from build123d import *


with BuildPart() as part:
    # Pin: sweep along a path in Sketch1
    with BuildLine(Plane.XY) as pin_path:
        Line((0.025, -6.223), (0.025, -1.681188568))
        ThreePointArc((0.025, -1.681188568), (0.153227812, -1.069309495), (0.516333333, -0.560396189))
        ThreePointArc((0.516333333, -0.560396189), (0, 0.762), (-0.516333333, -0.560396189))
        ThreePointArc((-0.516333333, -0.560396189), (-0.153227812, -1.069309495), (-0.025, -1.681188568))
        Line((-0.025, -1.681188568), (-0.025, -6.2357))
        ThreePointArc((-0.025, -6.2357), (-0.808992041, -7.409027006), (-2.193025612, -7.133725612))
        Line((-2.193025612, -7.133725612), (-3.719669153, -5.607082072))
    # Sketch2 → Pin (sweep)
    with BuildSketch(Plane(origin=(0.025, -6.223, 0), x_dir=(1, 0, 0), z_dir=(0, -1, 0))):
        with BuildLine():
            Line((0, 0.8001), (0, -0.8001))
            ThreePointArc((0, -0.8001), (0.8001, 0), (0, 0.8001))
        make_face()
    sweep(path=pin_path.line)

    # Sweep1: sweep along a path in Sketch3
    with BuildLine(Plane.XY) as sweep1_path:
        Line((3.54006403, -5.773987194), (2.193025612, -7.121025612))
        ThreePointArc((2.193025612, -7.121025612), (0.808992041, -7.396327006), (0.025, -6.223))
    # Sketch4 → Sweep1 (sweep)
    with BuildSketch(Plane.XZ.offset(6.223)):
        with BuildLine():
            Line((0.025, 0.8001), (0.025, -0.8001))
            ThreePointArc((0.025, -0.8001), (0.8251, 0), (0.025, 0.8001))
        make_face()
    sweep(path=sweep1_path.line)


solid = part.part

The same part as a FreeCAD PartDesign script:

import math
import FreeCAD as App
import Part
import Sketcher
Q = App.Units.Quantity

doc = App.newDocument("Part")
body = doc.addObject("PartDesign::Body", "Body")

# Sketch on XZ plane
sketch1 = body.newObject("Sketcher::SketchObject", "Sketch")
sketch1.AttachmentSupport = (doc.getObject("XZ_Plane"), [""])
sketch1.MapMode = "FlatFace"
sketch1.AttachmentOffset = App.Placement(App.Vector(0, 0, 0.245 * 25.4), App.Rotation())
sketch1.addGeometry(Part.LineSegment(App.Vector(0.025, 0.8001, 0), App.Vector(0.025, -0.8001, 0)), False)
sketch1.addGeometry(Part.ArcOfCircle(Part.Circle(App.Vector(0.025, 0, 0), App.Vector(0, 0, 1), 0.8001), math.radians(-90), math.radians(90)), False)
sketch1.addConstraint(Sketcher.Constraint("Coincident", 0, 1, 1, 2))
sketch1.addConstraint(Sketcher.Constraint("Coincident", 1, 1, 0, 2))
sketch1.addConstraint(Sketcher.Constraint("Vertical", 0))
sketch1.addConstraint(Sketcher.Constraint("PointOnObject", 1, 3, -1))
sketch1.addConstraint(Sketcher.Constraint("Vertical", 1, 3, 0, 1))
sketch1.addConstraint(Sketcher.Constraint("Radius", 1, Q("0.0315 in")))
sketch1.addConstraint(Sketcher.Constraint("DistanceX", -1, 1, 1, 3, Q("0.025 mm")))

# Sketch on XY plane
sketch2 = body.newObject("Sketcher::SketchObject", "Sketch001")
sketch2.AttachmentSupport = (doc.getObject("XY_Plane"), [""])
sketch2.MapMode = "FlatFace"
sketch2.addGeometry(Part.LineSegment(App.Vector(0.025, -6.223, 0), App.Vector(0.025, -1.681189, 0)), False)
sketch2.addGeometry(Part.ArcOfCircle(Part.Circle(App.Vector(1.549, -1.681189, 0), App.Vector(0, 0, 1), 1.524), math.radians(132.6566), math.radians(180)), False)
sketch2.addGeometry(Part.ArcOfCircle(Part.Circle(App.Vector(0, 0, 0), App.Vector(0, 0, 1), 0.762), math.radians(-47.3434), math.radians(227.3434)), False)
sketch2.addGeometry(Part.ArcOfCircle(Part.Circle(App.Vector(-1.549, -1.681189, 0), App.Vector(0, 0, 1), 1.524), math.radians(0), math.radians(47.3434)), False)
sketch2.addGeometry(Part.LineSegment(App.Vector(-0.025, -1.681189, 0), App.Vector(-0.025, -6.2357, 0)), False)
sketch2.addGeometry(Part.ArcOfCircle(Part.Circle(App.Vector(-1.295, -6.2357, 0), App.Vector(0, 0, 1), 1.27), math.radians(-135), math.radians(0)), False)
sketch2.addGeometry(Part.LineSegment(App.Vector(-2.193026, -7.133726, 0), App.Vector(-3.719669, -5.607082, 0)), False)
sketch2.addConstraint(Sketcher.Constraint("Tangent", 0, 2, 1, 2))
sketch2.addConstraint(Sketcher.Constraint("Tangent", 1, 1, 2, 1))
sketch2.addConstraint(Sketcher.Constraint("Tangent", 2, 2, 3, 2))
sketch2.addConstraint(Sketcher.Constraint("Tangent", 3, 1, 4, 1))
sketch2.addConstraint(Sketcher.Constraint("Tangent", 4, 2, 5, 2))
sketch2.addConstraint(Sketcher.Constraint("Tangent", 5, 1, 6, 1))
sketch2.addConstraint(Sketcher.Constraint("Vertical", 0))
sketch2.addConstraint(Sketcher.Constraint("Vertical", 4))
sketch2.addConstraint(Sketcher.Constraint("Coincident", 2, 3, -1, 1))
sketch2.addConstraint(Sketcher.Constraint("Equal", 1, 3))
sketch2.addConstraint(Sketcher.Constraint("Horizontal", 1, 3, 3, 3))
sketch2.addConstraint(Sketcher.Constraint("Radius", 1, Q("0.06 in")))
sketch2.addConstraint(Sketcher.Constraint("Radius", 2, Q("0.03 in")))
sketch2.addConstraint(Sketcher.Constraint("Radius", 5, Q("0.05 in")))
sketch2.addConstraint(Sketcher.Constraint("Angle", 6, Q("135 deg")))
sketch2.addConstraint(Sketcher.Constraint("Distance", 6, Q("0.085 in")))
sketch2.addConstraint(Sketcher.Constraint("DistanceY", 0, 1, -1, 1, Q("0.245 in")))
sketch2.addConstraint(Sketcher.Constraint("DistanceY", 5, 3, -1, 1, Q("0.2455 in")))
sketch2.addConstraint(Sketcher.Constraint("DistanceY", 0, 1, 0, 2, Q("4.541811 mm")))
doc.recompute()

additivepipe = body.newObject("PartDesign::AdditivePipe", "AdditivePipe")
additivepipe.Profile = sketch1
additivepipe.Spine = (sketch2, ["Edge1", "Edge2", "Edge3", "Edge4", "Edge5", "Edge6", "Edge7"])

# Sketch on XZ plane
sketch3 = body.newObject("Sketcher::SketchObject", "Sketch002")
sketch3.AttachmentSupport = (doc.getObject("XZ_Plane"), [""])
sketch3.MapMode = "FlatFace"
sketch3.AttachmentOffset = App.Placement(App.Vector(0, 0, 0.245 * 25.4), App.Rotation())
sketch3.addGeometry(Part.LineSegment(App.Vector(0.025, 0.8001, 0), App.Vector(0.025, -0.8001, 0)), False)
sketch3.addGeometry(Part.ArcOfCircle(Part.Circle(App.Vector(0.025, 0, 0), App.Vector(0, 0, 1), 0.8001), math.radians(-90), math.radians(90)), False)
sketch3.addConstraint(Sketcher.Constraint("Coincident", 0, 1, 1, 2))
sketch3.addConstraint(Sketcher.Constraint("Coincident", 1, 1, 0, 2))
sketch3.addConstraint(Sketcher.Constraint("Vertical", 0))
sketch3.addConstraint(Sketcher.Constraint("PointOnObject", 1, 3, -1))
sketch3.addConstraint(Sketcher.Constraint("Vertical", 1, 3, 0, 1))
sketch3.addConstraint(Sketcher.Constraint("Radius", 1, Q("0.0315 in")))
sketch3.addConstraint(Sketcher.Constraint("DistanceX", -1, 1, 1, 3, Q("0.025 mm")))

# Sketch on XY plane
sketch4 = body.newObject("Sketcher::SketchObject", "Sketch003")
sketch4.AttachmentSupport = (doc.getObject("XY_Plane"), [""])
sketch4.MapMode = "FlatFace"
sketch4.addGeometry(Part.LineSegment(App.Vector(3.540064, -5.773987, 0), App.Vector(2.193026, -7.121026, 0)), False)
sketch4.addGeometry(Part.ArcOfCircle(Part.Circle(App.Vector(1.295, -6.223, 0), App.Vector(0, 0, 1), 1.27), math.radians(180), math.radians(315)), False)
sketch4.addConstraint(Sketcher.Constraint("Tangent", 0, 2, 1, 2))
sketch4.addConstraint(Sketcher.Constraint("Radius", 1, Q("0.05 in")))
sketch4.addConstraint(Sketcher.Constraint("Angle", 0, Q("-135 deg")))
sketch4.addConstraint(Sketcher.Constraint("Distance", 0, Q("0.075 in")))
sketch4.addConstraint(Sketcher.Constraint("DistanceY", 1, 3, -1, 1, Q("0.245 in")))
sketch4.addConstraint(Sketcher.Constraint("DistanceY", 1, 1, -1, 1, Q("0.245 in")))
sketch4.addConstraint(Sketcher.Constraint("DistanceX", -1, 1, 1, 3, Q("1.295 mm")))
doc.recompute()

additivepipe2 = body.newObject("PartDesign::AdditivePipe", "AdditivePipe001")
additivepipe2.Profile = sketch3
additivepipe2.Spine = (sketch4, ["Edge1", "Edge2"])

doc.recompute()
